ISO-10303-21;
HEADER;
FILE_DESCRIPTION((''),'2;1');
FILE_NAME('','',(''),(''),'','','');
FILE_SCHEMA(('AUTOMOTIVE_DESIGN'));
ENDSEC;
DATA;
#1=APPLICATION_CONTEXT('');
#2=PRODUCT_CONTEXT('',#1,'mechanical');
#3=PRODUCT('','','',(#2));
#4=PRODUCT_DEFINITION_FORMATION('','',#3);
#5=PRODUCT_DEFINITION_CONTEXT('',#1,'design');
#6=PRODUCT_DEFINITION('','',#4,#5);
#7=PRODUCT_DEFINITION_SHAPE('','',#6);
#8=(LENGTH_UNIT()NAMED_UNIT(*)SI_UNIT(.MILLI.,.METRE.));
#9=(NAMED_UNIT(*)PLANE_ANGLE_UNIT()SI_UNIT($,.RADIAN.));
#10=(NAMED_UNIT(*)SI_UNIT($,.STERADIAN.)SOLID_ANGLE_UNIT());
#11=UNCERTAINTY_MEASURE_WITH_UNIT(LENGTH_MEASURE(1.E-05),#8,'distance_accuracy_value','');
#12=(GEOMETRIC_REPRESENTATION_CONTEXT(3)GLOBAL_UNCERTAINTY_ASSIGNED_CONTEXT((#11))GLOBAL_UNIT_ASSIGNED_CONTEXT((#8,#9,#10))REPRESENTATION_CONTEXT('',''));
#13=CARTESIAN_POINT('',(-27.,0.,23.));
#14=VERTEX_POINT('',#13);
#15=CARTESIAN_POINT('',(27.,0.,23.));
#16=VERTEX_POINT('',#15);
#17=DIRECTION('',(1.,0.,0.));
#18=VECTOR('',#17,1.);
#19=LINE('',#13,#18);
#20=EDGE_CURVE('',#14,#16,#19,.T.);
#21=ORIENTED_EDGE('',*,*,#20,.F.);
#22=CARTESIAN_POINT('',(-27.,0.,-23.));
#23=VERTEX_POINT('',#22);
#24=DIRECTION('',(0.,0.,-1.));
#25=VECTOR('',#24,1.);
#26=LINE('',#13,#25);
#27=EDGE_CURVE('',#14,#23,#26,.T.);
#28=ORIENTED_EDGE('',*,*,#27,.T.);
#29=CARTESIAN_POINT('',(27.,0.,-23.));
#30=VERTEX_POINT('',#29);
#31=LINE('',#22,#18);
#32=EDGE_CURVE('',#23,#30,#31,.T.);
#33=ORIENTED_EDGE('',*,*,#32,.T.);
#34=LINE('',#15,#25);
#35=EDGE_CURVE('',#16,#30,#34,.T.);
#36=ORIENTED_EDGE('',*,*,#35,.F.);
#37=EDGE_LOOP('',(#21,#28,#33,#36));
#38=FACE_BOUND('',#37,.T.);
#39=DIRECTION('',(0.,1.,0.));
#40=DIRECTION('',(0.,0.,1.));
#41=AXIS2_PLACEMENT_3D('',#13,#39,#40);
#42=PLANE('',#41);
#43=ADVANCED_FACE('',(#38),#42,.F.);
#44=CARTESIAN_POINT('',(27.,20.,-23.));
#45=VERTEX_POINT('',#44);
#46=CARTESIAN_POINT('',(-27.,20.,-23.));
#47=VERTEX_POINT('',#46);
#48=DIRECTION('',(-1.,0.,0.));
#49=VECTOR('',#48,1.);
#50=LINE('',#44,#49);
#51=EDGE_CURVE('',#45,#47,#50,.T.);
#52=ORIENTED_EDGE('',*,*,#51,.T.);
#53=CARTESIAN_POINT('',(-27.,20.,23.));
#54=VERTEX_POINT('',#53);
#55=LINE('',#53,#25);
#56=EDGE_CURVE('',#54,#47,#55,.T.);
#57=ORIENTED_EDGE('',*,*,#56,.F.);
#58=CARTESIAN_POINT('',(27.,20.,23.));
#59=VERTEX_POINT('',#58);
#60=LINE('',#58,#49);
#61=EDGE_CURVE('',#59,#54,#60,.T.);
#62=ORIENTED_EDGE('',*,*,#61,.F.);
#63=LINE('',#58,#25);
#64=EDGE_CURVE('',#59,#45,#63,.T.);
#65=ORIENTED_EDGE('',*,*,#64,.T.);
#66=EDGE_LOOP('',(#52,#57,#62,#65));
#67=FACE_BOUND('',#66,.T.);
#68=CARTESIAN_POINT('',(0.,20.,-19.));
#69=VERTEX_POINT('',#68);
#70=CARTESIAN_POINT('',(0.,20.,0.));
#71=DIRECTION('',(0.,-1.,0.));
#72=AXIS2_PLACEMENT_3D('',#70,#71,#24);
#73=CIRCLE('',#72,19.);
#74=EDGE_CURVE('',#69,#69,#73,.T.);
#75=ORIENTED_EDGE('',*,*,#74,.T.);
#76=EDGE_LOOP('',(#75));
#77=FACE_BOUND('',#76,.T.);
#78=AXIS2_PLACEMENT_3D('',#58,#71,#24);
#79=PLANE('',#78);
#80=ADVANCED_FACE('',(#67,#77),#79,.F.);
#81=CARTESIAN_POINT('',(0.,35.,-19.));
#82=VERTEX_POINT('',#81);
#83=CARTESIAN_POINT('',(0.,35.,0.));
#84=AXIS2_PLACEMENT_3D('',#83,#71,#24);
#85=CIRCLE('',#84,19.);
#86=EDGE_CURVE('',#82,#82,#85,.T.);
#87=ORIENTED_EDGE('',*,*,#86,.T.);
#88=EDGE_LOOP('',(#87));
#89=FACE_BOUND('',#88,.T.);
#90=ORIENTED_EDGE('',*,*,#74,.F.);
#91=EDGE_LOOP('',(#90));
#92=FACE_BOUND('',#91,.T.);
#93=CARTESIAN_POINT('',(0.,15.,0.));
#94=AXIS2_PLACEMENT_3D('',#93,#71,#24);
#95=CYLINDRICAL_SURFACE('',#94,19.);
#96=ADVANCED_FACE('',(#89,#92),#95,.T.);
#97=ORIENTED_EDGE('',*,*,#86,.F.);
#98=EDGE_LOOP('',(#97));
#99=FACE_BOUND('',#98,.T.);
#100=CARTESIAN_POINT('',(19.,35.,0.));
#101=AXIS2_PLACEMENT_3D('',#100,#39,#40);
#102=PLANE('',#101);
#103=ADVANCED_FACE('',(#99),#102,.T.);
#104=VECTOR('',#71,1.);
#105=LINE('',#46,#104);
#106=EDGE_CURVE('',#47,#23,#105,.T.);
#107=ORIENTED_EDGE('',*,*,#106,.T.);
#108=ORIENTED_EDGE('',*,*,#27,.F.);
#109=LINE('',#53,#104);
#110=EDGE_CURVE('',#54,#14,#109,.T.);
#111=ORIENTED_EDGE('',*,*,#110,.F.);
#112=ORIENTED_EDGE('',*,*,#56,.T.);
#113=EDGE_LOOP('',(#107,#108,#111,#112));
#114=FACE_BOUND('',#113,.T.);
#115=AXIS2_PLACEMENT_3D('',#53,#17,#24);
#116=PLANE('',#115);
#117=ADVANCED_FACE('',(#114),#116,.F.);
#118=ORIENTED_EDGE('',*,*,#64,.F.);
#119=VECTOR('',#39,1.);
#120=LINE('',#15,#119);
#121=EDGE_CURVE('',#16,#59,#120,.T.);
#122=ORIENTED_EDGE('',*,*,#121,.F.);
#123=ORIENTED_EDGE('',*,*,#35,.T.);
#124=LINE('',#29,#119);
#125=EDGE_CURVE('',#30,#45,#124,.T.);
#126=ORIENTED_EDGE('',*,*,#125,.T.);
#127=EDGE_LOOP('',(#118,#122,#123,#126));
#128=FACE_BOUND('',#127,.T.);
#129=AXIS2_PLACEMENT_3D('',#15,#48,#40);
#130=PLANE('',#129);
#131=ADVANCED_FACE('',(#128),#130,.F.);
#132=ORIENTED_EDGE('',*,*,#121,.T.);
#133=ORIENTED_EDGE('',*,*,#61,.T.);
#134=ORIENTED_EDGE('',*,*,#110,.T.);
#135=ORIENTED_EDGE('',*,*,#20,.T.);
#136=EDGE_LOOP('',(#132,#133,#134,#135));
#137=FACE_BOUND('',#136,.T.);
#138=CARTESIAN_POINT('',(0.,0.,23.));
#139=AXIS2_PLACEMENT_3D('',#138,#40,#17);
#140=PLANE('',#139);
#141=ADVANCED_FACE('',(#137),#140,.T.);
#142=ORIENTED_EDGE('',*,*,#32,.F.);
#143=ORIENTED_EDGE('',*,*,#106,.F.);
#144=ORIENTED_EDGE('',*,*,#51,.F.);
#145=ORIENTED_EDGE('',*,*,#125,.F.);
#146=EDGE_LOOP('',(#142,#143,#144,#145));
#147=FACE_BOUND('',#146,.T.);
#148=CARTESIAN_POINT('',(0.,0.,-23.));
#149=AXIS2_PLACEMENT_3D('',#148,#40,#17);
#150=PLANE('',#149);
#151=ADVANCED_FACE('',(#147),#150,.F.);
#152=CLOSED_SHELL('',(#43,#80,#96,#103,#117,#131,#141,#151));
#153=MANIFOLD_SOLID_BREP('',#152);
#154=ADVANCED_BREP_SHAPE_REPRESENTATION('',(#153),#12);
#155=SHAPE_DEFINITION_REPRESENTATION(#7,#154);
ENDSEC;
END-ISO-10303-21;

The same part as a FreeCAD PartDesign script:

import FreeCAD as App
import Part
import Sketcher

doc = App.newDocument("Part")
body = doc.addObject("PartDesign::Body", "Body")

sketch1 = body.newObject("Sketcher::SketchObject", "Sketch")
sketch1.AttachmentSupport = (doc.getObject("XY_Plane"), [""])
sketch1.MapMode = "FlatFace"
sketch1.addGeometry([
    Part.LineSegment(App.Vector(-27, 20, 0), App.Vector(-27, 0, 0)),
    Part.LineSegment(App.Vector(-27, 0, 0), App.Vector(27, 0, 0)),
    Part.LineSegment(App.Vector(27, 0, 0), App.Vector(27, 20, 0)),
    Part.LineSegment(App.Vector(27, 20, 0), App.Vector(-27, 20, 0)),
], False)
sketch1.addConstraint([
    Sketcher.Constraint("Coincident", 0, 2, 1, 1),
    Sketcher.Constraint("Coincident", 1, 2, 2, 1),
    Sketcher.Constraint("Coincident", 2, 2, 3, 1),
    Sketcher.Constraint("Coincident", 3, 2, 0, 1),
    Sketcher.Constraint("Vertical", 0),
    Sketcher.Constraint("Horizontal", 1),
    Sketcher.Constraint("Vertical", 2),
    Sketcher.Constraint("Horizontal", 3),
    Sketcher.Constraint("Symmetric", 0, 2, 1, 2, -1, 1),
    Sketcher.Constraint("DistanceX", 1, 1, 1, 2, 54.0),
    Sketcher.Constraint("DistanceY", 0, 2, 0, 1, 20.0),
])
pad1 = body.newObject("PartDesign::Pad", "Pad")
pad1.Profile = sketch1
pad1.Length = 46
pad1.Midplane = True

sketch2 = body.newObject("Sketcher::SketchObject", "Sketch001")
sketch2.AttachmentSupport = (doc.getObject("XY_Plane"), [""])
sketch2.MapMode = "FlatFace"
sketch2.addGeometry([
    Part.LineSegment(App.Vector(0, 35, 0), App.Vector(0, 20, 0)),
    Part.LineSegment(App.Vector(0, 20, 0), App.Vector(19, 20, 0)),
    Part.LineSegment(App.Vector(19, 20, 0), App.Vector(19, 35, 0)),
    Part.LineSegment(App.Vector(19, 35, 0), App.Vector(0, 35, 0)),
], False)
sketch2.addConstraint([
    Sketcher.Constraint("Coincident", 0, 2, 1, 1),
    Sketcher.Constraint("Coincident", 1, 2, 2, 1),
    Sketcher.Constraint("Coincident", 2, 2, 3, 1),
    Sketcher.Constraint("Coincident", 3, 2, 0, 1),
    Sketcher.Constraint("Vertical", 0),
    Sketcher.Constraint("Horizontal", 1),
    Sketcher.Constraint("Vertical", 2),
    Sketcher.Constraint("Horizontal", 3),
    Sketcher.Constraint("PointOnObject", 0, 2, -2),
    Sketcher.Constraint("DistanceX", 1, 1, 1, 2, 19.0),
    Sketcher.Constraint("DistanceY", 0, 2, 0, 1, 15.0),
    Sketcher.Constraint("DistanceY", -1, 1, 0, 2, 20.0),
])
revolution = body.newObject("PartDesign::Revolution", "Revolution")
revolution.Profile = sketch2
revolution.ReferenceAxis = (sketch2, ["V_Axis"])
revolution.Angle = 360

doc.recompute()
